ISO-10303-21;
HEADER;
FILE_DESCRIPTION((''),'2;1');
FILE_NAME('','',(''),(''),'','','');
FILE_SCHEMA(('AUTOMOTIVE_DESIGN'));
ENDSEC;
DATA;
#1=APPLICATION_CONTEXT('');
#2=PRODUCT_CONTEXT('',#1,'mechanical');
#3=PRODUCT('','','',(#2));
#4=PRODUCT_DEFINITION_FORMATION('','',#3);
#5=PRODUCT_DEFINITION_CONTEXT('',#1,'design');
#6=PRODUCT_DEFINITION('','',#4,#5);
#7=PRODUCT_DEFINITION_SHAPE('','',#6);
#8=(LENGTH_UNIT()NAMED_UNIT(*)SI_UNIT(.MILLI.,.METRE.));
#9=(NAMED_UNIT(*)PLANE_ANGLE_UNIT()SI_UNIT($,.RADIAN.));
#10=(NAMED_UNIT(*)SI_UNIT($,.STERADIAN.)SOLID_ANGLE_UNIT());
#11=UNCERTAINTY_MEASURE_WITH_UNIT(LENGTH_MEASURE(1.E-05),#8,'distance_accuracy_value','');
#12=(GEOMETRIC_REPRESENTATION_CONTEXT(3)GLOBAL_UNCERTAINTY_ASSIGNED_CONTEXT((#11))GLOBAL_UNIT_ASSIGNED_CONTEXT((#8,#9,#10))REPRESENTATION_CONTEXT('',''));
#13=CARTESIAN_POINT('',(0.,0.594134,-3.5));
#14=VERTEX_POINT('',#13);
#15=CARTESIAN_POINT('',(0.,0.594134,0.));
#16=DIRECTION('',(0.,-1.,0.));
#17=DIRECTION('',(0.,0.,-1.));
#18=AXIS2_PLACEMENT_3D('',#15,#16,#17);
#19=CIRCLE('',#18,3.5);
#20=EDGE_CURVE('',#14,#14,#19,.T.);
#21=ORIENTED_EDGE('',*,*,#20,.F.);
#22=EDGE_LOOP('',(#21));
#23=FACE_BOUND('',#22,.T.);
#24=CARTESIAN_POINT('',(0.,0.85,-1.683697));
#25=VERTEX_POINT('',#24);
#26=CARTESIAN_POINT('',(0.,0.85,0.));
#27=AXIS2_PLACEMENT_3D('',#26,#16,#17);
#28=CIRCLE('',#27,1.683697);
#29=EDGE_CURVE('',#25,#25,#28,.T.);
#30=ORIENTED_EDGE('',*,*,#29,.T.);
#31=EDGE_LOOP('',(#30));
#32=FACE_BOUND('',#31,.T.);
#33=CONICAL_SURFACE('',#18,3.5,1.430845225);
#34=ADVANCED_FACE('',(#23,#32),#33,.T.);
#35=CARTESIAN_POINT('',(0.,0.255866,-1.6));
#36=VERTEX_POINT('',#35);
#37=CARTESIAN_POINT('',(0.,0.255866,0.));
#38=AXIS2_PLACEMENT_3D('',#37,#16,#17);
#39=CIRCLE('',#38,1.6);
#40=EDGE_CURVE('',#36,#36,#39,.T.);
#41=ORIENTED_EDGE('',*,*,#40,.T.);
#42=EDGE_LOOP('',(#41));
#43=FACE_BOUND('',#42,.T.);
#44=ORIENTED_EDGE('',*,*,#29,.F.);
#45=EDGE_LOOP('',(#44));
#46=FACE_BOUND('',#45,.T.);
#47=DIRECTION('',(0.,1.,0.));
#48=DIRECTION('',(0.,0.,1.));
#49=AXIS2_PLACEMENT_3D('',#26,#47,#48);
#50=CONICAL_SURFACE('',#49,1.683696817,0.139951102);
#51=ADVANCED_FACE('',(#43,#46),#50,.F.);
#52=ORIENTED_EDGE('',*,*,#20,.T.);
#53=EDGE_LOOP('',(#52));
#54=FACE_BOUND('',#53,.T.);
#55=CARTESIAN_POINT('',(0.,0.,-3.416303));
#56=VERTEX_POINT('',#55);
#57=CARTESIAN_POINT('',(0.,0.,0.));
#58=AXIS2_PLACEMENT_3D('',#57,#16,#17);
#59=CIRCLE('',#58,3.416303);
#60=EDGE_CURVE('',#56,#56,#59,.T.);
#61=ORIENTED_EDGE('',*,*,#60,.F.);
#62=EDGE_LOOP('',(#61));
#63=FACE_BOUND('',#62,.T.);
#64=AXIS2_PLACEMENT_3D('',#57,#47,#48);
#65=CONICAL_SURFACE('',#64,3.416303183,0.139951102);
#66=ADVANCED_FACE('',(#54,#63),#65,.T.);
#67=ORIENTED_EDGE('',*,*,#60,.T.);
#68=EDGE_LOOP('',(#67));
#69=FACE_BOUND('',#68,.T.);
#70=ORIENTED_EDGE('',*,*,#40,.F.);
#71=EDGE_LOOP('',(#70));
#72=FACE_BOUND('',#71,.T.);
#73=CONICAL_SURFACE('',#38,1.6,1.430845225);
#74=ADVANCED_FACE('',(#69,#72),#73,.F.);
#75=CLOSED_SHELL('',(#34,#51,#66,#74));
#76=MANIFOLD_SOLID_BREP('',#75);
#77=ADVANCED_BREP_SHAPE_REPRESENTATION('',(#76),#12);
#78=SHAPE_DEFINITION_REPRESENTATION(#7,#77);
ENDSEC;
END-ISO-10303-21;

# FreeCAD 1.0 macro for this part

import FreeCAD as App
import Part
import Sketcher

V = App.Vector
Q = App.Units.Quantity

doc = App.newDocument("Part")
body = doc.addObject("PartDesign::Body", "Body")

sketch1 = body.newObject("Sketcher::SketchObject", "Sketch")
sketch1.AttachmentSupport = (doc.getObject("XY_Plane"), [""])
sketch1.MapMode = "FlatFace"
sketch1.addGeometry(Part.LineSegment(V(1.6, 0.3, 0), V(3.4, 0, 0)), False)
sketch1.addGeometry(Part.LineSegment(V(3.4, 0, 0), V(3.5, 0.6, 0)), False)
sketch1.addGeometry(Part.LineSegment(V(3.5, 0.6, 0), V(1.7, 0.8, 0)), False)
sketch1.addGeometry(Part.LineSegment(V(1.7, 0.8, 0), V(1.6, 0.3, 0)), False)
sketch1.addConstraint(Sketcher.Constraint("Coincident", 0, 2, 1, 1))
sketch1.addConstraint(Sketcher.Constraint("Coincident", 1, 2, 2, 1))
sketch1.addConstraint(Sketcher.Constraint("Coincident", 2, 2, 3, 1))
sketch1.addConstraint(Sketcher.Constraint("Coincident", 3, 2, 0, 1))
sketch1.addConstraint(Sketcher.Constraint("PointOnObject", 0, 2, -1))
sketch1.addConstraint(Sketcher.Constraint("Perpendicular", 0, 1))
sketch1.addConstraint(Sketcher.Constraint("Perpendicular", 1, 2))
sketch1.addConstraint(Sketcher.Constraint("Perpendicular", 2, 3))
sketch1.addConstraint(Sketcher.Constraint("Distance", 1, Q("0.6 mm")))
sketch1.addConstraint(Sketcher.Constraint("DistanceX", -1, 1, 1, 2, Q("3.5 mm")))
sketch1.addConstraint(Sketcher.Constraint("DistanceX", -1, 1, 3, 2, Q("1.6 mm")))
sketch1.addConstraint(Sketcher.Constraint("DistanceY", -1, 1, 2, 2, Q("0.85 mm")))
revolution = body.newObject("PartDesign::Revolution", "Revolution")
revolution.Profile = sketch1
revolution.ReferenceAxis = (sketch1, ["V_Axis"])
revolution.Angle = 360

doc.recompute()
